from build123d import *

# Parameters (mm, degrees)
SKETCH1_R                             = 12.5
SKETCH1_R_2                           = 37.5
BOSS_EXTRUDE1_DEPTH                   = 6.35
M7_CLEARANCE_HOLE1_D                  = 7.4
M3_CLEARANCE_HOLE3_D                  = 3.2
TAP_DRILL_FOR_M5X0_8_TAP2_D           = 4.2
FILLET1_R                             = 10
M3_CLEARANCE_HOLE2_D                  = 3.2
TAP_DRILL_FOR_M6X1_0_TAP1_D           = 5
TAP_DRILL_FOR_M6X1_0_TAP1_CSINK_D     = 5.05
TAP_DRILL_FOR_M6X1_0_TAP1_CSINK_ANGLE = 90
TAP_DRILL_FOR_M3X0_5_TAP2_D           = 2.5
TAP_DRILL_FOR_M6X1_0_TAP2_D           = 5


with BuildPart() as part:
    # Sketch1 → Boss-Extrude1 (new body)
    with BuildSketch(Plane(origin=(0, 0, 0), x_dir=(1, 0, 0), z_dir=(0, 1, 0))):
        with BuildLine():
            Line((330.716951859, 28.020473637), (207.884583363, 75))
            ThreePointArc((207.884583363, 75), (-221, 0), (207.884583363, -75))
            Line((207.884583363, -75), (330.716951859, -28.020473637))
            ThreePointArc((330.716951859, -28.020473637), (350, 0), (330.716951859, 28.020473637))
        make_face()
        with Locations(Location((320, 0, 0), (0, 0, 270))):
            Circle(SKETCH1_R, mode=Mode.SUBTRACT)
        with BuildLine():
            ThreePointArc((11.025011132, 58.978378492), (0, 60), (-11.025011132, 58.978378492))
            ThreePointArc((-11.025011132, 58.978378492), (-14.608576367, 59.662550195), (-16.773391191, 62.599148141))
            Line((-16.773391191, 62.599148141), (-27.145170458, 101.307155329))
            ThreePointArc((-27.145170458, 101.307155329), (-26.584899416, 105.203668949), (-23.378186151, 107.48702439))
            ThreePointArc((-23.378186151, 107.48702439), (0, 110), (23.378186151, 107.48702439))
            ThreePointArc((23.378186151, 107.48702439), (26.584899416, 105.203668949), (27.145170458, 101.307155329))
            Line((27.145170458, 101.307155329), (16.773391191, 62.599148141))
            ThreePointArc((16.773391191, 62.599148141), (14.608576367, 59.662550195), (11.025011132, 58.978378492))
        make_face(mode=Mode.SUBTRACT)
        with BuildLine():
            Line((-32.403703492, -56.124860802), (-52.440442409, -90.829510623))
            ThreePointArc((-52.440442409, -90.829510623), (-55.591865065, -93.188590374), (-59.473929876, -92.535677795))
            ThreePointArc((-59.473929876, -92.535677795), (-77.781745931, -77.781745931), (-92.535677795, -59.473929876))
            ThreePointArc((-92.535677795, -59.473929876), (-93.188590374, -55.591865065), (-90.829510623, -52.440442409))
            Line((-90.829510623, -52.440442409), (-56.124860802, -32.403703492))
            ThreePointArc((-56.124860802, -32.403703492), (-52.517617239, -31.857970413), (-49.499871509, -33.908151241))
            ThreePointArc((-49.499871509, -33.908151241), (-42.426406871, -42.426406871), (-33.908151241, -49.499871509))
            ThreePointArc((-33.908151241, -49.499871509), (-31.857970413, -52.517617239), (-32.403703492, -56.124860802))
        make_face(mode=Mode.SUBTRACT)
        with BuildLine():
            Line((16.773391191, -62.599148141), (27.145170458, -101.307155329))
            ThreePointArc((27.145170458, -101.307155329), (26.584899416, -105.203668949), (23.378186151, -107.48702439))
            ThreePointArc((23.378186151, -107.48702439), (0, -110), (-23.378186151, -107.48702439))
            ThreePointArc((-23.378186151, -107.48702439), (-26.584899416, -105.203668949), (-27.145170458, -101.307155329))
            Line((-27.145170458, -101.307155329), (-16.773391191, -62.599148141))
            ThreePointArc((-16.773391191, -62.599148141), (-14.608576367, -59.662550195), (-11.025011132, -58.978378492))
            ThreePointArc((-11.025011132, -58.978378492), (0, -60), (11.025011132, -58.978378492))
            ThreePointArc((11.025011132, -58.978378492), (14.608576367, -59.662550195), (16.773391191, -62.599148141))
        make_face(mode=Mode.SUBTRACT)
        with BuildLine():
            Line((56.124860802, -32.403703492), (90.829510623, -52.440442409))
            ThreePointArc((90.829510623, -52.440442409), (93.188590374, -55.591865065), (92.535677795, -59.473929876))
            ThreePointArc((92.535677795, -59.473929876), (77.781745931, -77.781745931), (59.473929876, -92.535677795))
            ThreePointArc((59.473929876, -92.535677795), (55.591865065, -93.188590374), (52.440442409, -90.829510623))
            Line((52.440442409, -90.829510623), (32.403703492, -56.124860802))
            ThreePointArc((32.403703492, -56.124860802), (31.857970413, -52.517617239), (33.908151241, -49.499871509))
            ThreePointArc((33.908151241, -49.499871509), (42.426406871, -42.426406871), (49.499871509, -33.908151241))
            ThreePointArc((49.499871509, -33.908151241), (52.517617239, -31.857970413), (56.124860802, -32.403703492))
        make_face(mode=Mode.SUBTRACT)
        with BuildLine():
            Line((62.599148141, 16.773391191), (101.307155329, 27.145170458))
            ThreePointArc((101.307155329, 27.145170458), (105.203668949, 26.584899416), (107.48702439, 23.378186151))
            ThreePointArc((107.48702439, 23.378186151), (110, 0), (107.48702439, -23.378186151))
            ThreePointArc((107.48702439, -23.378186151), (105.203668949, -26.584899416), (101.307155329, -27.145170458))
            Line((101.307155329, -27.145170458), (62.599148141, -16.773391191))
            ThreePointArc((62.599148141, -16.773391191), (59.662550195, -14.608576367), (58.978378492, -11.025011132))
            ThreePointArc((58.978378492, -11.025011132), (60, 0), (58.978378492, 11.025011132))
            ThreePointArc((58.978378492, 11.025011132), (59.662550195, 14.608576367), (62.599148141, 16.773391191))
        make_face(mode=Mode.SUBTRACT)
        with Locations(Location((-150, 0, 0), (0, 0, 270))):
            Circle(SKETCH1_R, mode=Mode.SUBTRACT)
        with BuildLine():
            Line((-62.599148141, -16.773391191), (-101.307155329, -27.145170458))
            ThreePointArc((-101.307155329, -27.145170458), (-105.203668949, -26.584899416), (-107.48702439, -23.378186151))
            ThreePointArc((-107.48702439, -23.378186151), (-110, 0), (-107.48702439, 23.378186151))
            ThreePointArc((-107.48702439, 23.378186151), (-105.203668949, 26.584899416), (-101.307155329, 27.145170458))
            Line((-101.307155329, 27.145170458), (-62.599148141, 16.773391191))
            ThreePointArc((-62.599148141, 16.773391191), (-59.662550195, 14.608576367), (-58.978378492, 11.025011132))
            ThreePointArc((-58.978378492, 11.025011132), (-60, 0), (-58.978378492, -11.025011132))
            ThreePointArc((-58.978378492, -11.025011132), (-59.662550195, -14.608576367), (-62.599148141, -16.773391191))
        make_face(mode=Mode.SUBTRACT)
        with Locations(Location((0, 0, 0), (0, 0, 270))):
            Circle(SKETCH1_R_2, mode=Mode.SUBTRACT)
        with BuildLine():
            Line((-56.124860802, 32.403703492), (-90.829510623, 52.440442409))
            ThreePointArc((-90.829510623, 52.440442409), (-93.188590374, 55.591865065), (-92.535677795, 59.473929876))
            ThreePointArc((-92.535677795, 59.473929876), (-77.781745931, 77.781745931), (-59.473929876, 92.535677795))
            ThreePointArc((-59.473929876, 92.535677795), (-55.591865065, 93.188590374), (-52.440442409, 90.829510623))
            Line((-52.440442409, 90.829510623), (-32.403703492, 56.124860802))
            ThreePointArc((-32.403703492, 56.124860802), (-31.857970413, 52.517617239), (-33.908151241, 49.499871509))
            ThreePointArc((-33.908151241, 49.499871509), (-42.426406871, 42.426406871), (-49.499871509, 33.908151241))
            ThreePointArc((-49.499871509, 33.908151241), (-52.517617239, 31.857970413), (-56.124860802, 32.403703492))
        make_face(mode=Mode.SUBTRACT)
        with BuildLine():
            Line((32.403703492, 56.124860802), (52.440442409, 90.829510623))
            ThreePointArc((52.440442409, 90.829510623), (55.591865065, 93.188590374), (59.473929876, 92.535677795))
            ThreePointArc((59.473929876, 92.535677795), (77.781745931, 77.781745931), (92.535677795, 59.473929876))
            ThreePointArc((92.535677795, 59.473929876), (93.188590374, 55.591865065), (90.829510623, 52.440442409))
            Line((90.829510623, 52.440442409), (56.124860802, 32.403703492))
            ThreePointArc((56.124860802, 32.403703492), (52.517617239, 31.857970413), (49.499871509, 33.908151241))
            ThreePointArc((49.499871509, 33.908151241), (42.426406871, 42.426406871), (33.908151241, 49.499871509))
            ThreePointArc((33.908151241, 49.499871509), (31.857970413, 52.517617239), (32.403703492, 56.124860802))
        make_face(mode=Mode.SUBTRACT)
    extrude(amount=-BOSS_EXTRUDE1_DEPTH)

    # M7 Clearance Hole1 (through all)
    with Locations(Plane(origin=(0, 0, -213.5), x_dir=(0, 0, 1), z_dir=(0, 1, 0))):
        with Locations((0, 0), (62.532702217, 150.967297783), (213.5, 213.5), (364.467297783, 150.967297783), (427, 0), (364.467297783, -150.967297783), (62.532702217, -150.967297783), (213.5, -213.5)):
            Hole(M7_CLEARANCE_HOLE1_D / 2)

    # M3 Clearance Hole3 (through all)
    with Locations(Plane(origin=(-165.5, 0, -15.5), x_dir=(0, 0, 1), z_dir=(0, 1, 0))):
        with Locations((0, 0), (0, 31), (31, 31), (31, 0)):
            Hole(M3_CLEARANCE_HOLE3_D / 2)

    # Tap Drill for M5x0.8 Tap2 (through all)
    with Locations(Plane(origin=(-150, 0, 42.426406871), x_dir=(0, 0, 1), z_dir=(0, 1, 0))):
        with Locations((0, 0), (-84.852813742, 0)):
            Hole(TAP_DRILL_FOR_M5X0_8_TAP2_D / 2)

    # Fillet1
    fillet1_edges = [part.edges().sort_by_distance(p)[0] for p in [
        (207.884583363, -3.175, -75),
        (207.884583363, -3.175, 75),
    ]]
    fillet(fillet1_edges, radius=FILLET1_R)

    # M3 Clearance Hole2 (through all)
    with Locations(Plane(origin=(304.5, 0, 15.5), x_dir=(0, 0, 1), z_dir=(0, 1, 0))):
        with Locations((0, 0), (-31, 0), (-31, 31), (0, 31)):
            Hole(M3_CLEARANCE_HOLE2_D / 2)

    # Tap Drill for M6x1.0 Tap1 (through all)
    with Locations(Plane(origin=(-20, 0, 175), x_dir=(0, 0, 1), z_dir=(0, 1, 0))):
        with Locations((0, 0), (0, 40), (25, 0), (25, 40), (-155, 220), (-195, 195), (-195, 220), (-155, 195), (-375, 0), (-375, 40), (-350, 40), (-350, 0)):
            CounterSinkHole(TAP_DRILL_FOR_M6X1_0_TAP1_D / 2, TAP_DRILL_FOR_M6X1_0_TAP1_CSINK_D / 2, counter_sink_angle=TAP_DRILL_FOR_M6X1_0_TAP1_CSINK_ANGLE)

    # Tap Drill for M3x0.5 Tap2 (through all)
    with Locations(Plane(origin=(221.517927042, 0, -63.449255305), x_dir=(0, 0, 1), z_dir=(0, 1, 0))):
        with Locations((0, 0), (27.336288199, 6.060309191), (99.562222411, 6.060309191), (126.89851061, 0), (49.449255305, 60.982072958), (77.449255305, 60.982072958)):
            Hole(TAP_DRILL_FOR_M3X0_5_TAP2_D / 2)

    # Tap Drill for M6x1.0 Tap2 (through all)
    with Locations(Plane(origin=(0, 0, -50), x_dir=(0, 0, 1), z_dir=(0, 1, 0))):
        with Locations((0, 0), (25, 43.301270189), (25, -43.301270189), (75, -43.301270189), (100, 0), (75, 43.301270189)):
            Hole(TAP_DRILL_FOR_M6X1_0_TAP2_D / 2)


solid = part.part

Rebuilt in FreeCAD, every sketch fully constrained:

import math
import FreeCAD as App
import Part
import Sketcher

V = App.Vector
Q = App.Units.Quantity


def edges_at(feature, points):
    """Names of the edges that pass closest to the given points."""
    edges = feature.Shape.Edges
    near = lambda p: min(range(len(edges)), key=lambda i: edges[i].distToShape(Part.Vertex(*p))[0])
    return sorted({f"Edge{near(p) + 1}" for p in points})

doc = App.newDocument("Part")
body = doc.addObject("PartDesign::Body", "Body")

# Sketch on XZ plane
sketch1 = body.newObject("Sketcher::SketchObject", "Sketch")
sketch1.AttachmentSupport = (doc.getObject("XZ_Plane"), [""])
sketch1.MapMode = "FlatFace"
sketch1.addGeometry(Part.LineSegment(V(330.7, -28, 0), V(207.9, -75, 0)), False)
sketch1.addGeometry(Part.ArcOfCircle(Part.Circle(V(0, 0, 0), V(0, 0, 1), 221), math.radians(20), math.radians(340)), False)
sketch1.addGeometry(Part.LineSegment(V(207.9, 75, 0), V(330.7, 28, 0)), False)
sketch1.addGeometry(Part.ArcOfCircle(Part.Circle(V(320, 0, 0), V(0, 0, 1), 30), math.radians(-69), math.radians(69)), False)
sketch1.addGeometry(Part.ArcOfCircle(Part.Circle(V(-36.7, 53.6, 0), V(0, 0, 1), 5), math.radians(-56), math.radians(30)), False)
sketch1.addGeometry(Part.LineSegment(V(-32.4, 56.1, 0), V(-52.4, 90.8, 0)), False)
sketch1.addGeometry(Part.ArcOfCircle(Part.Circle(V(-56.8, 88.3, 0), V(0, 0, 1), 5), math.radians(30), math.radians(123)), False)
sketch1.addGeometry(Part.ArcOfCircle(Part.Circle(V(0, 0, 0), V(0, 0, 1), 110), math.radians(123), math.radians(147)), False)
sketch1.addGeometry(Part.ArcOfCircle(Part.Circle(V(-88.3, 56.8, 0), V(0, 0, 1), 5), math.radians(147), math.radians(240)), False)
sketch1.addGeometry(Part.LineSegment(V(-90.8, 52.4, 0), V(-56.1, 32.4, 0)), False)
sketch1.addGeometry(Part.ArcOfCircle(Part.Circle(V(-53.6, 36.7, 0), V(0, 0, 1), 5), math.radians(-120), math.radians(-34)), False)
sketch1.addGeometry(Part.ArcOfCircle(Part.Circle(V(0, 0, 0), V(0, 0, 1), 60), math.radians(124), math.radians(146)), False)
sketch1.addGeometry(Part.ArcOfCircle(Part.Circle(V(11.9, 63.9, 0), V(0, 0, 1), 5), math.radians(-101), math.radians(-15)), False)
sketch1.addGeometry(Part.LineSegment(V(16.8, 62.6, 0), V(27.1, 101.3, 0)), False)
sketch1.addGeometry(Part.ArcOfCircle(Part.Circle(V(22.3, 102.6, 0), V(0, 0, 1), 5), math.radians(-15), math.radians(78)), False)
sketch1.addGeometry(Part.ArcOfCircle(Part.Circle(V(0, 0, 0), V(0, 0, 1), 110), math.radians(78), math.radians(102)), False)
sketch1.addGeometry(Part.ArcOfCircle(Part.Circle(V(-22.3, 102.6, 0), V(0, 0, 1), 5), math.radians(102), math.radians(195)), False)
sketch1.addGeometry(Part.LineSegment(V(-27.1, 101.3, 0), V(-16.8, 62.6, 0)), False)
sketch1.addGeometry(Part.ArcOfCircle(Part.Circle(V(-11.9, 63.9, 0), V(0, 0, 1), 5), math.radians(-165), math.radians(-79)), False)
sketch1.addGeometry(Part.ArcOfCircle(Part.Circle(V(0, 0, 0), V(0, 0, 1), 60), math.radians(79), math.radians(101)), False)
sketch1.addGeometry(Part.ArcOfCircle(Part.Circle(V(53.6, 36.7, 0), V(0, 0, 1), 5), math.radians(-146), math.radians(-60)), False)
sketch1.addGeometry(Part.LineSegment(V(56.1, 32.4, 0), V(90.8, 52.4, 0)), False)
sketch1.addGeometry(Part.ArcOfCircle(Part.Circle(V(88.3, 56.8, 0), V(0, 0, 1), 5), math.radians(-60), math.radians(33)), False)
sketch1.addGeometry(Part.ArcOfCircle(Part.Circle(V(0, 0, 0), V(0, 0, 1), 110), math.radians(33), math.radians(57)), False)
sketch1.addGeometry(Part.ArcOfCircle(Part.Circle(V(56.8, 88.3, 0), V(0, 0, 1), 5), math.radians(57), math.radians(150)), False)
sketch1.addGeometry(Part.LineSegment(V(52.4, 90.8, 0), V(32.4, 56.1, 0)), False)
sketch1.addGeometry(Part.ArcOfCircle(Part.Circle(V(36.7, 53.6, 0), V(0, 0, 1), 5), math.radians(150), math.radians(236)), False)
sketch1.addGeometry(Part.ArcOfCircle(Part.Circle(V(0, 0, 0), V(0, 0, 1), 60), math.radians(34), math.radians(56)), False)
sketch1.addGeometry(Part.Circle(V(-150, 0, 0), V(0, 0, 1), 12.5), False)
sketch1.addGeometry(Part.ArcOfCircle(Part.Circle(V(-63.9, 11.9, 0), V(0, 0, 1), 5), math.radians(-11), math.radians(75)), False)
sketch1.addGeometry(Part.LineSegment(V(-62.6, 16.8, 0), V(-101.3, 27.1, 0)), False)
sketch1.addGeometry(Part.ArcOfCircle(Part.Circle(V(-102.6, 22.3, 0), V(0, 0, 1), 5), math.radians(75), math.radians(168)), False)
sketch1.addGeometry(Part.ArcOfCircle(Part.Circle(V(0, 0, 0), V(0, 0, 1), 110), math.radians(168), math.radians(192)), False)
sketch1.addGeometry(Part.ArcOfCircle(Part.Circle(V(-102.6, -22.3, 0), V(0, 0, 1), 5), math.radians(-168), math.radians(-75)), False)
sketch1.addGeometry(Part.LineSegment(V(-101.3, -27.1, 0), V(-62.6, -16.8, 0)), False)
sketch1.addGeometry(Part.ArcOfCircle(Part.Circle(V(-63.9, -11.9, 0), V(0, 0, 1), 5), math.radians(-75), math.radians(11)), False)
sketch1.addGeometry(Part.ArcOfCircle(Part.Circle(V(0, 0, 0), V(0, 0, 1), 60), math.radians(169), math.radians(191)), False)
sketch1.addGeometry(Part.Circle(V(0, 0, 0), V(0, 0, 1), 37.5), False)
sketch1.addGeometry(Part.ArcOfCircle(Part.Circle(V(63.9, -11.9, 0), V(0, 0, 1), 5), math.radians(169), math.radians(255)), False)
sketch1.addGeometry(Part.LineSegment(V(62.6, -16.8, 0), V(101.3, -27.1, 0)), False)
sketch1.addGeometry(Part.ArcOfCircle(Part.Circle(V(102.6, -22.3, 0), V(0, 0, 1), 5), math.radians(-105), math.radians(-12)), False)
sketch1.addGeometry(Part.ArcOfCircle(Part.Circle(V(0, 0, 0), V(0, 0, 1), 110), math.radians(-12), math.radians(12)), False)
sketch1.addGeometry(Part.ArcOfCircle(Part.Circle(V(102.6, 22.3, 0), V(0, 0, 1), 5), math.radians(12), math.radians(105)), False)
sketch1.addGeometry(Part.LineSegment(V(101.3, 27.1, 0), V(62.6, 16.8, 0)), False)
sketch1.addGeometry(Part.ArcOfCircle(Part.Circle(V(63.9, 11.9, 0), V(0, 0, 1), 5), math.radians(105), math.radians(191)), False)
sketch1.addGeometry(Part.ArcOfCircle(Part.Circle(V(0, 0, 0), V(0, 0, 1), 60), math.radians(-11), math.radians(11)), False)
sketch1.addGeometry(Part.ArcOfCircle(Part.Circle(V(-53.6, -36.7, 0), V(0, 0, 1), 5), math.radians(34), math.radians(120)), False)
sketch1.addGeometry(Part.LineSegment(V(-56.1, -32.4, 0), V(-90.8, -52.4, 0)), False)
sketch1.addGeometry(Part.ArcOfCircle(Part.Circle(V(-88.3, -56.8, 0), V(0, 0, 1), 5), math.radians(120), math.radians(213)), False)
sketch1.addGeometry(Part.ArcOfCircle(Part.Circle(V(0, 0, 0), V(0, 0, 1), 110), math.radians(-147), math.radians(-123)), False)
sketch1.addGeometry(Part.ArcOfCircle(Part.Circle(V(-56.8, -88.3, 0), V(0, 0, 1), 5), math.radians(-123), math.radians(-30)), False)
sketch1.addGeometry(Part.LineSegment(V(-52.4, -90.8, 0), V(-32.4, -56.1, 0)), False)
sketch1.addGeometry(Part.ArcOfCircle(Part.Circle(V(-36.7, -53.6, 0), V(0, 0, 1), 5), math.radians(-30), math.radians(56)), False)
sketch1.addGeometry(Part.ArcOfCircle(Part.Circle(V(0, 0, 0), V(0, 0, 1), 60), math.radians(-146), math.radians(-124)), False)
sketch1.addGeometry(Part.ArcOfCircle(Part.Circle(V(36.7, -53.6, 0), V(0, 0, 1), 5), math.radians(124), math.radians(210)), False)
sketch1.addGeometry(Part.LineSegment(V(32.4, -56.1, 0), V(52.4, -90.8, 0)), False)
sketch1.addGeometry(Part.ArcOfCircle(Part.Circle(V(56.8, -88.3, 0), V(0, 0, 1), 5), math.radians(-150), math.radians(-57)), False)
sketch1.addGeometry(Part.ArcOfCircle(Part.Circle(V(0, 0, 0), V(0, 0, 1), 110), math.radians(-57), math.radians(-33)), False)
sketch1.addGeometry(Part.ArcOfCircle(Part.Circle(V(88.3, -56.8, 0), V(0, 0, 1), 5), math.radians(-33), math.radians(60)), False)
sketch1.addGeometry(Part.LineSegment(V(90.8, -52.4, 0), V(56.1, -32.4, 0)), False)
sketch1.addGeometry(Part.ArcOfCircle(Part.Circle(V(53.6, -36.7, 0), V(0, 0, 1), 5), math.radians(60), math.radians(146)), False)
sketch1.addGeometry(Part.ArcOfCircle(Part.Circle(V(0, 0, 0), V(0, 0, 1), 60), math.radians(-56), math.radians(-34)), False)
sketch1.addGeometry(Part.ArcOfCircle(Part.Circle(V(11.9, -63.9, 0), V(0, 0, 1), 5), math.radians(15), math.radians(101)), False)
sketch1.addGeometry(Part.ArcOfCircle(Part.Circle(V(0, 0, 0), V(0, 0, 1), 60), math.radians(-101), math.radians(-79)), False)
sketch1.addGeometry(Part.ArcOfCircle(Part.Circle(V(-11.9, -63.9, 0), V(0, 0, 1), 5), math.radians(79), math.radians(165)), False)
sketch1.addGeometry(Part.LineSegment(V(-16.8, -62.6, 0), V(-27.1, -101.3, 0)), False)
sketch1.addGeometry(Part.ArcOfCircle(Part.Circle(V(-22.3, -102.6, 0), V(0, 0, 1), 5), math.radians(165), math.radians(258)), False)
sketch1.addGeometry(Part.ArcOfCircle(Part.Circle(V(0, 0, 0), V(0, 0, 1), 110), math.radians(-102), math.radians(-78)), False)
sketch1.addGeometry(Part.ArcOfCircle(Part.Circle(V(22.3, -102.6, 0), V(0, 0, 1), 5), math.radians(-78), math.radians(15)), False)
sketch1.addGeometry(Part.LineSegment(V(27.1, -101.3, 0), V(16.8, -62.6, 0)), False)
sketch1.addGeometry(Part.Circle(V(320, 0, 0), V(0, 0, 1), 12.5), False)
sketch1.addConstraint(Sketcher.Constraint("Coincident", 0, 2, 1, 2))
sketch1.addConstraint(Sketcher.Constraint("Coincident", 1, 1, 2, 1))
sketch1.addConstraint(Sketcher.Constraint("Tangent", 2, 2, 3, 2))
sketch1.addConstraint(Sketcher.Constraint("Tangent", 3, 1, 0, 1))
sketch1.addConstraint(Sketcher.Constraint("Tangent", 4, 2, 5, 1))
sketch1.addConstraint(Sketcher.Constraint("Tangent", 5, 2, 6, 1))
sketch1.addConstraint(Sketcher.Constraint("Tangent", 6, 2, 7, 1))
sketch1.addConstraint(Sketcher.Constraint("Tangent", 7, 2, 8, 1))
sketch1.addConstraint(Sketcher.Constraint("Tangent", 8, 2, 9, 1))
sketch1.addConstraint(Sketcher.Constraint("Tangent", 9, 2, 10, 1))
sketch1.addConstraint(Sketcher.Constraint("Tangent", 10, 2, 11, 2))
sketch1.addConstraint(Sketcher.Constraint("Tangent", 11, 1, 4, 1))
sketch1.addConstraint(Sketcher.Constraint("Tangent", 12, 2, 13, 1))
sketch1.addConstraint(Sketcher.Constraint("Tangent", 13, 2, 14, 1))
sketch1.addConstraint(Sketcher.Constraint("Tangent", 14, 2, 15, 1))
sketch1.addConstraint(Sketcher.Constraint("Tangent", 15, 2, 16, 1))
sketch1.addConstraint(Sketcher.Constraint("Tangent", 16, 2, 17, 1))
sketch1.addConstraint(Sketcher.Constraint("Tangent", 17, 2, 18, 1))
sketch1.addConstraint(Sketcher.Constraint("Tangent", 18, 2, 19, 2))
sketch1.addConstraint(Sketcher.Constraint("Tangent", 19, 1, 12, 1))
sketch1.addConstraint(Sketcher.Constraint("Tangent", 20, 2, 21, 1))
sketch1.addConstraint(Sketcher.Constraint("Tangent", 21, 2, 22, 1))
sketch1.addConstraint(Sketcher.Constraint("Tangent", 22, 2, 23, 1))
sketch1.addConstraint(Sketcher.Constraint("Tangent", 23, 2, 24, 1))
sketch1.addConstraint(Sketcher.Constraint("Tangent", 24, 2, 25, 1))
sketch1.addConstraint(Sketcher.Constraint("Tangent", 25, 2, 26, 1))
sketch1.addConstraint(Sketcher.Constraint("Tangent", 26, 2, 27, 2))
sketch1.addConstraint(Sketcher.Constraint("Tangent", 27, 1, 20, 1))
sketch1.addConstraint(Sketcher.Constraint("Tangent", 29, 2, 30, 1))
sketch1.addConstraint(Sketcher.Constraint("Tangent", 30, 2, 31, 1))
sketch1.addConstraint(Sketcher.Constraint("Tangent", 31, 2, 32, 1))
sketch1.addConstraint(Sketcher.Constraint("Tangent", 32, 2, 33, 1))
sketch1.addConstraint(Sketcher.Constraint("Tangent", 33, 2, 34, 1))
sketch1.addConstraint(Sketcher.Constraint("Tangent", 34, 2, 35, 1))
sketch1.addConstraint(Sketcher.Constraint("Tangent", 35, 2, 36, 2))
sketch1.addConstraint(Sketcher.Constraint("Tangent", 36, 1, 29, 1))
sketch1.addConstraint(Sketcher.Constraint("Tangent", 38, 2, 39, 1))
sketch1.addConstraint(Sketcher.Constraint("Tangent", 39, 2, 40, 1))
sketch1.addConstraint(Sketcher.Constraint("Tangent", 40, 2, 41, 1))
sketch1.addConstraint(Sketcher.Constraint("Tangent", 41, 2, 42, 1))
sketch1.addConstraint(Sketcher.Constraint("Tangent", 42, 2, 43, 1))
sketch1.addConstraint(Sketcher.Constraint("Tangent", 43, 2, 44, 1))
sketch1.addConstraint(Sketcher.Constraint("Tangent", 44, 2, 45, 2))
sketch1.addConstraint(Sketcher.Constraint("Tangent", 45, 1, 38, 1))
sketch1.addConstraint(Sketcher.Constraint("Tangent", 46, 2, 47, 1))
sketch1.addConstraint(Sketcher.Constraint("Tangent", 47, 2, 48, 1))
sketch1.addConstraint(Sketcher.Constraint("Tangent", 48, 2, 49, 1))
sketch1.addConstraint(Sketcher.Constraint("Tangent", 49, 2, 50, 1))
sketch1.addConstraint(Sketcher.Constraint("Tangent", 50, 2, 51, 1))
sketch1.addConstraint(Sketcher.Constraint("Tangent", 51, 2, 52, 1))
sketch1.addConstraint(Sketcher.Constraint("Tangent", 52, 2, 53, 2))
sketch1.addConstraint(Sketcher.Constraint("Tangent", 53, 1, 46, 1))
sketch1.addConstraint(Sketcher.Constraint("Tangent", 54, 2, 55, 1))
sketch1.addConstraint(Sketcher.Constraint("Tangent", 55, 2, 56, 1))
sketch1.addConstraint(Sketcher.Constraint("Tangent", 56, 2, 57, 1))
sketch1.addConstraint(Sketcher.Constraint("Tangent", 57, 2, 58, 1))
sketch1.addConstraint(Sketcher.Constraint("Tangent", 58, 2, 59, 1))
sketch1.addConstraint(Sketcher.Constraint("Tangent", 59, 2, 60, 1))
sketch1.addConstraint(Sketcher.Constraint("Tangent", 60, 2, 61, 2))
sketch1.addConstraint(Sketcher.Constraint("Tangent", 61, 1, 54, 1))
sketch1.addConstraint(Sketcher.Constraint("Tangent", 62, 2, 63, 2))
sketch1.addConstraint(Sketcher.Constraint("Tangent", 63, 1, 64, 1))
sketch1.addConstraint(Sketcher.Constraint("Tangent", 64, 2, 65, 1))
sketch1.addConstraint(Sketcher.Constraint("Tangent", 65, 2, 66, 1))
sketch1.addConstraint(Sketcher.Constraint("Tangent", 66, 2, 67, 1))
sketch1.addConstraint(Sketcher.Constraint("Tangent", 67, 2, 68, 1))
sketch1.addConstraint(Sketcher.Constraint("Tangent", 68, 2, 69, 1))
sketch1.addConstraint(Sketcher.Constraint("Tangent", 69, 2, 62, 1))
sketch1.addConstraint(Sketcher.Constraint("Coincident", 1, 3, -1, 1))
sketch1.addConstraint(Sketcher.Constraint("Coincident", 7, 3, -1, 1))
sketch1.addConstraint(Sketcher.Constraint("Coincident", 11, 3, -1, 1))
sketch1.addConstraint(Sketcher.Constraint("Coincident", 15, 3, -1, 1))
sketch1.addConstraint(Sketcher.Constraint("Coincident", 19, 3, -1, 1))
sketch1.addConstraint(Sketcher.Constraint("Coincident", 23, 3, -1, 1))
sketch1.addConstraint(Sketcher.Constraint("Coincident", 27, 3, -1, 1))
sketch1.addConstraint(Sketcher.Constraint("Coincident", 32, 3, -1, 1))
sketch1.addConstraint(Sketcher.Constraint("Coincident", 36, 3, -1, 1))
sketch1.addConstraint(Sketcher.Constraint("Coincident", 37, 3, -1, 1))
sketch1.addConstraint(Sketcher.Constraint("Coincident", 41, 3, -1, 1))
sketch1.addConstraint(Sketcher.Constraint("Coincident", 45, 3, -1, 1))
sketch1.addConstraint(Sketcher.Constraint("Coincident", 49, 3, -1, 1))
sketch1.addConstraint(Sketcher.Constraint("Coincident", 53, 3, -1, 1))
sketch1.addConstraint(Sketcher.Constraint("Coincident", 57, 3, -1, 1))
sketch1.addConstraint(Sketcher.Constraint("Coincident", 61, 3, -1, 1))
sketch1.addConstraint(Sketcher.Constraint("Coincident", 63, 3, -1, 1))
sketch1.addConstraint(Sketcher.Constraint("Coincident", 67, 3, -1, 1))
sketch1.addConstraint(Sketcher.Constraint("Coincident", 70, 3, 3, 3))
sketch1.addConstraint(Sketcher.Constraint("Equal", 4, 6))
sketch1.addConstraint(Sketcher.Constraint("Equal", 6, 8))
sketch1.addConstraint(Sketcher.Constraint("Equal", 8, 10))
sketch1.addConstraint(Sketcher.Constraint("Equal", 10, 12))
sketch1.addConstraint(Sketcher.Constraint("Equal", 12, 14))
sketch1.addConstraint(Sketcher.Constraint("Equal", 7, 15))
sketch1.addConstraint(Sketcher.Constraint("Equal", 14, 16))
sketch1.addConstraint(Sketcher.Constraint("Equal", 16, 18))
sketch1.addConstraint(Sketcher.Constraint("Equal", 11, 19))
sketch1.addConstraint(Sketcher.Constraint("Equal", 18, 20))
sketch1.addConstraint(Sketcher.Constraint("Equal", 20, 22))
sketch1.addConstraint(Sketcher.Constraint("Equal", 15, 23))
sketch1.addConstraint(Sketcher.Constraint("Equal", 22, 24))
sketch1.addConstraint(Sketcher.Constraint("Equal", 24, 26))
sketch1.addConstraint(Sketcher.Constraint("Equal", 19, 27))
sketch1.addConstraint(Sketcher.Constraint("Equal", 26, 29))
sketch1.addConstraint(Sketcher.Constraint("Equal", 29, 31))
sketch1.addConstraint(Sketcher.Constraint("Equal", 23, 32))
sketch1.addConstraint(Sketcher.Constraint("Equal", 31, 33))
sketch1.addConstraint(Sketcher.Constraint("Equal", 33, 35))
sketch1.addConstraint(Sketcher.Constraint("Equal", 27, 36))
sketch1.addConstraint(Sketcher.Constraint("Equal", 35, 38))
sketch1.addConstraint(Sketcher.Constraint("Equal", 38, 40))
sketch1.addConstraint(Sketcher.Constraint("Equal", 32, 41))
sketch1.addConstraint(Sketcher.Constraint("Equal", 40, 42))
sketch1.addConstraint(Sketcher.Constraint("Equal", 42, 44))
sketch1.addConstraint(Sketcher.Constraint("Equal", 36, 45))
sketch1.addConstraint(Sketcher.Constraint("Equal", 44, 46))
sketch1.addConstraint(Sketcher.Constraint("Equal", 46, 48))
sketch1.addConstraint(Sketcher.Constraint("Equal", 41, 49))
sketch1.addConstraint(Sketcher.Constraint("Equal", 48, 50))
sketch1.addConstraint(Sketcher.Constraint("Equal", 50, 52))
sketch1.addConstraint(Sketcher.Constraint("Equal", 45, 53))
sketch1.addConstraint(Sketcher.Constraint("Equal", 52, 54))
sketch1.addConstraint(Sketcher.Constraint("Equal", 54, 56))
sketch1.addConstraint(Sketcher.Constraint("Equal", 49, 57))
sketch1.addConstraint(Sketcher.Constraint("Equal", 56, 58))
sketch1.addConstraint(Sketcher.Constraint("Equal", 58, 60))
sketch1.addConstraint(Sketcher.Constraint("Equal", 53, 61))
sketch1.addConstraint(Sketcher.Constraint("Equal", 60, 62))
sketch1.addConstraint(Sketcher.Constraint("Equal", 61, 63))
sketch1.addConstraint(Sketcher.Constraint("Equal", 62, 64))
sketch1.addConstraint(Sketcher.Constraint("Equal", 64, 66))
sketch1.addConstraint(Sketcher.Constraint("Equal", 57, 67))
sketch1.addConstraint(Sketcher.Constraint("Equal", 66, 68))
sketch1.addConstraint(Sketcher.Constraint("Equal", 28, 70))
sketch1.addConstraint(Sketcher.Constraint("Symmetric", 29, 2, 38, 2, -1, 1))
sketch1.addConstraint(Sketcher.Constraint("Symmetric", 33, 2, 42, 2, -1, 1))
sketch1.addConstraint(Sketcher.Constraint("Symmetric", 20, 2, 46, 2, -1, 1))
sketch1.addConstraint(Sketcher.Constraint("Symmetric", 24, 2, 50, 2, -1, 1))
sketch1.addConstraint(Sketcher.Constraint("Symmetric", 4, 2, 54, 2, -1, 1))
sketch1.addConstraint(Sketcher.Constraint("Symmetric", 8, 2, 58, 2, -1, 1))
sketch1.addConstraint(Sketcher.Constraint("Symmetric", 12, 2, 64, 2, -1, 1))
sketch1.addConstraint(Sketcher.Constraint("Symmetric", 16, 2, 68, 2, -1, 1))
sketch1.addConstraint(Sketcher.Constraint("Symmetric", 13, 2, 16, 2, -2))
sketch1.addConstraint(Sketcher.Constraint("Symmetric", 9, 2, 20, 2, -2))
sketch1.addConstraint(Sketcher.Constraint("Symmetric", 5, 2, 24, 2, -2))
sketch1.addConstraint(Sketcher.Constraint("Symmetric", 34, 2, 38, 2, -2))
sketch1.addConstraint(Sketcher.Constraint("Symmetric", 2, 2, 3, 1, -1))
sketch1.addConstraint(Sketcher.Constraint("PointOnObject", 28, 3, -1))
sketch1.addConstraint(Sketcher.Constraint("Perpendicular", 5, 21))
sketch1.addConstraint(Sketcher.Constraint("Perpendicular", 13, 30))
sketch1.addConstraint(Sketcher.Constraint("Equal", 5, 9))
sketch1.addConstraint(Sketcher.Constraint("Equal", 9, 13))
sketch1.addConstraint(Sketcher.Constraint("Equal", 25, 30))
sketch1.addConstraint(Sketcher.Constraint("Diameter", 28, 25.0))
sketch1.addConstraint(Sketcher.Constraint("Diameter", 37, 75.0))
sketch1.addConstraint(Sketcher.Constraint("Radius", 1, 221.0))
sketch1.addConstraint(Sketcher.Constraint("Radius", 3, 30.0))
sketch1.addConstraint(Sketcher.Constraint("Radius", 4, 5.0))
sketch1.addConstraint(Sketcher.Constraint("Radius", 7, 110.0))
sketch1.addConstraint(Sketcher.Constraint("Radius", 11, 60.0))
sketch1.addConstraint(Sketcher.Constraint("Angle", 5, Q("120 deg")))
sketch1.addConstraint(Sketcher.Constraint("Angle", 13, Q("75 deg")))
sketch1.addConstraint(Sketcher.Constraint("DistanceX", -1, 1, 3, 3, 320.0))
sketch1.addConstraint(Sketcher.Constraint("DistanceX", 28, 3, -1, 1, 150.0))
sketch1.addConstraint(Sketcher.Constraint("DistanceY", 0, 2, -1, 1, 75.0))
sketch1.addConstraint(Sketcher.Constraint("DistanceX", 4, 3, -1, 1, 36.733831))
pad1 = body.newObject("PartDesign::Pad", "Pad")
pad1.Profile = sketch1
pad1.Length = 6.35

# Sketch on XZ plane
sketch2 = body.newObject("Sketcher::SketchObject", "Sketch001")
sketch2.AttachmentSupport = (doc.getObject("XZ_Plane"), [""])
sketch2.MapMode = "FlatFace"
sketch2.addGeometry(Part.Circle(V(0, -213.5, 0), V(0, 0, 1), 3.7), False)
sketch2.addGeometry(Part.Circle(V(151, -151, 0), V(0, 0, 1), 3.7), False)
sketch2.addGeometry(Part.Circle(V(213.5, 0, 0), V(0, 0, 1), 3.7), False)
sketch2.addGeometry(Part.Circle(V(151, 151, 0), V(0, 0, 1), 3.7), False)
sketch2.addGeometry(Part.Circle(V(0, 213.5, 0), V(0, 0, 1), 3.7), False)
sketch2.addGeometry(Part.Circle(V(-151, 151, 0), V(0, 0, 1), 3.7), False)
sketch2.addGeometry(Part.Circle(V(-151, -151, 0), V(0, 0, 1), 3.7), False)
sketch2.addGeometry(Part.Circle(V(-213.5, 0, 0), V(0, 0, 1), 3.7), False)
sketch2.addConstraint(Sketcher.Constraint("Equal", 0, 1))
sketch2.addConstraint(Sketcher.Constraint("Equal", 1, 2))
sketch2.addConstraint(Sketcher.Constraint("Equal", 2, 3))
sketch2.addConstraint(Sketcher.Constraint("Equal", 3, 4))
sketch2.addConstraint(Sketcher.Constraint("Equal", 4, 5))
sketch2.addConstraint(Sketcher.Constraint("Equal", 5, 6))
sketch2.addConstraint(Sketcher.Constraint("Equal", 6, 7))
sketch2.addConstraint(Sketcher.Constraint("Symmetric", 0, 3, 4, 3, -1, 1))
sketch2.addConstraint(Sketcher.Constraint("Symmetric", 1, 3, 5, 3, -1, 1))
sketch2.addConstraint(Sketcher.Constraint("Symmetric", 3, 3, 6, 3, -1, 1))
sketch2.addConstraint(Sketcher.Constraint("Symmetric", 2, 3, 7, 3, -1, 1))
sketch2.addConstraint(Sketcher.Constraint("Symmetric", 3, 3, 5, 3, -2))
sketch2.addConstraint(Sketcher.Constraint("PointOnObject", 0, 3, -2))
sketch2.addConstraint(Sketcher.Constraint("PointOnObject", 2, 3, -1))
sketch2.addConstraint(Sketcher.Constraint("Diameter", 0, 7.4))
sketch2.addConstraint(Sketcher.Constraint("DistanceY", 0, 3, 4, 3, 427.0))
sketch2.addConstraint(Sketcher.Constraint("DistanceX", -1, 1, 2, 3, 213.5))
sketch2.addConstraint(Sketcher.Constraint("DistanceX", -1, 1, 1, 3, 150.967298))
sketch2.addConstraint(Sketcher.Constraint("DistanceY", 1, 3, -1, 1, 150.967298))
doc.recompute()
hole = body.newObject("PartDesign::Hole", "Hole")
hole.Profile = sketch2
hole.ThreadType = "None"
hole.Diameter = 7.4
hole.DepthType = "ThroughAll"
hole.Reversed = True

# Sketch on XZ plane
sketch3 = body.newObject("Sketcher::SketchObject", "Sketch002")
sketch3.AttachmentSupport = (doc.getObject("XZ_Plane"), [""])
sketch3.MapMode = "FlatFace"
sketch3.addGeometry(Part.Circle(V(-165.5, -15.5, 0), V(0, 0, 1), 1.6), False)
sketch3.addGeometry(Part.Circle(V(-134.5, -15.5, 0), V(0, 0, 1), 1.6), False)
sketch3.addGeometry(Part.Circle(V(-134.5, 15.5, 0), V(0, 0, 1), 1.6), False)
sketch3.addGeometry(Part.Circle(V(-165.5, 15.5, 0), V(0, 0, 1), 1.6), False)
sketch3.addConstraint(Sketcher.Constraint("Equal", 0, 1))
sketch3.addConstraint(Sketcher.Constraint("Equal", 1, 2))
sketch3.addConstraint(Sketcher.Constraint("Equal", 2, 3))
sketch3.addConstraint(Sketcher.Constraint("Symmetric", 1, 3, 2, 3, -1))
sketch3.addConstraint(Sketcher.Constraint("Symmetric", 0, 3, 3, 3, -1))
sketch3.addConstraint(Sketcher.Constraint("Horizontal", 0, 3, 1, 3))
sketch3.addConstraint(Sketcher.Constraint("Diameter", 0, 3.2))
sketch3.addConstraint(Sketcher.Constraint("DistanceX", 0, 3, 1, 3, 31.0))
sketch3.addConstraint(Sketcher.Constraint("DistanceY", 1, 3, 2, 3, 31.0))
sketch3.addConstraint(Sketcher.Constraint("DistanceX", 0, 3, -1, 1, 165.5))
doc.recompute()
hole2 = body.newObject("PartDesign::Hole", "Hole001")
hole2.Profile = sketch3
hole2.ThreadType = "None"
hole2.Diameter = 3.2
hole2.DepthType = "ThroughAll"
hole2.Reversed = True

# Sketch on XZ plane
sketch4 = body.newObject("Sketcher::SketchObject", "Sketch003")
sketch4.AttachmentSupport = (doc.getObject("XZ_Plane"), [""])
sketch4.MapMode = "FlatFace"
sketch4.addGeometry(Part.Circle(V(-150, 42.4, 0), V(0, 0, 1), 2.1), False)
sketch4.addGeometry(Part.Circle(V(-150, -42.4, 0), V(0, 0, 1), 2.1), False)
sketch4.addConstraint(Sketcher.Constraint("Equal", 0, 1))
sketch4.addConstraint(Sketcher.Constraint("Symmetric", 0, 3, 1, 3, -1))
sketch4.addConstraint(Sketcher.Constraint("Diameter", 0, 4.2))
sketch4.addConstraint(Sketcher.Constraint("DistanceX", 0, 3, -1, 1, 150.0))
sketch4.addConstraint(Sketcher.Constraint("DistanceY", -1, 1, 0, 3, 42.426407))
doc.recompute()
hole3 = body.newObject("PartDesign::Hole", "Hole002")
hole3.Profile = sketch4
hole3.ThreadType = "None"
hole3.Diameter = 4.2
hole3.DepthType = "ThroughAll"
hole3.Reversed = True
doc.recompute()

fillet = body.newObject("PartDesign::Fillet", "Fillet")
fillet.Base = (hole3, edges_at(hole3, [(207.885, -3.175, -75), (207.885, -3.175, 75)]))
fillet.Radius = 10

# Sketch on XZ plane
sketch5 = body.newObject("Sketcher::SketchObject", "Sketch004")
sketch5.AttachmentSupport = (doc.getObject("XZ_Plane"), [""])
sketch5.MapMode = "FlatFace"
sketch5.addGeometry(Part.Circle(V(304.5, 15.5, 0), V(0, 0, 1), 1.6), False)
sketch5.addGeometry(Part.Circle(V(304.5, -15.5, 0), V(0, 0, 1), 1.6), False)
sketch5.addGeometry(Part.Circle(V(335.5, -15.5, 0), V(0, 0, 1), 1.6), False)
sketch5.addGeometry(Part.Circle(V(335.5, 15.5, 0), V(0, 0, 1), 1.6), False)
sketch5.addConstraint(Sketcher.Constraint("Equal", 0, 1))
sketch5.addConstraint(Sketcher.Constraint("Equal", 1, 2))
sketch5.addConstraint(Sketcher.Constraint("Equal", 2, 3))
sketch5.addConstraint(Sketcher.Constraint("Symmetric", 0, 3, 1, 3, -1))
sketch5.addConstraint(Sketcher.Constraint("Symmetric", 2, 3, 3, 3, -1))
sketch5.addConstraint(Sketcher.Constraint("Horizontal", 1, 3, 2, 3))
sketch5.addConstraint(Sketcher.Constraint("Diameter", 0, 3.2))
sketch5.addConstraint(Sketcher.Constraint("DistanceY", 1, 3, 0, 3, 31.0))
sketch5.addConstraint(Sketcher.Constraint("DistanceX", 1, 3, 2, 3, 31.0))
sketch5.addConstraint(Sketcher.Constraint("DistanceX", -1, 1, 0, 3, 304.5))
doc.recompute()
hole4 = body.newObject("PartDesign::Hole", "Hole003")
hole4.Profile = sketch5
hole4.ThreadType = "None"
hole4.Diameter = 3.2
hole4.DepthType = "ThroughAll"
hole4.Reversed = True

# Sketch on XZ plane
sketch6 = body.newObject("Sketcher::SketchObject", "Sketch005")
sketch6.AttachmentSupport = (doc.getObject("XZ_Plane"), [""])
sketch6.MapMode = "FlatFace"
sketch6.addGeometry(Part.Circle(V(-20, 175, 0), V(0, 0, 1), 2.5), False)
sketch6.addGeometry(Part.Circle(V(20, 175, 0), V(0, 0, 1), 2.5), False)
sketch6.addGeometry(Part.Circle(V(-20, 200, 0), V(0, 0, 1), 2.5), False)
sketch6.addGeometry(Part.Circle(V(20, 200, 0), V(0, 0, 1), 2.5), False)
sketch6.addGeometry(Part.Circle(V(200, 20, 0), V(0, 0, 1), 2.5), False)
sketch6.addGeometry(Part.Circle(V(175, -20, 0), V(0, 0, 1), 2.5), False)
sketch6.addGeometry(Part.Circle(V(200, -20, 0), V(0, 0, 1), 2.5), False)
sketch6.addGeometry(Part.Circle(V(175, 20, 0), V(0, 0, 1), 2.5), False)
sketch6.addGeometry(Part.Circle(V(-20, -200, 0), V(0, 0, 1), 2.5), False)
sketch6.addGeometry(Part.Circle(V(20, -200, 0), V(0, 0, 1), 2.5), False)
sketch6.addGeometry(Part.Circle(V(20, -175, 0), V(0, 0, 1), 2.5), False)
sketch6.addGeometry(Part.Circle(V(-20, -175, 0), V(0, 0, 1), 2.5), False)
sketch6.addConstraint(Sketcher.Constraint("Equal", 0, 1))
sketch6.addConstraint(Sketcher.Constraint("Equal", 1, 2))
sketch6.addConstraint(Sketcher.Constraint("Equal", 2, 3))
sketch6.addConstraint(Sketcher.Constraint("Equal", 3, 4))
sketch6.addConstraint(Sketcher.Constraint("Equal", 4, 5))
sketch6.addConstraint(Sketcher.Constraint("Equal", 5, 6))
sketch6.addConstraint(Sketcher.Constraint("Equal", 6, 7))
sketch6.addConstraint(Sketcher.Constraint("Equal", 7, 8))
sketch6.addConstraint(Sketcher.Constraint("Equal", 8, 9))
sketch6.addConstraint(Sketcher.Constraint("Equal", 9, 10))
sketch6.addConstraint(Sketcher.Constraint("Equal", 10, 11))
sketch6.addConstraint(Sketcher.Constraint("Symmetric", 3, 3, 8, 3, -1, 1))
sketch6.addConstraint(Sketcher.Constraint("Symmetric", 2, 3, 9, 3, -1, 1))
sketch6.addConstraint(Sketcher.Constraint("Symmetric", 0, 3, 10, 3, -1, 1))
sketch6.addConstraint(Sketcher.Constraint("Symmetric", 1, 3, 11, 3, -1, 1))
sketch6.addConstraint(Sketcher.Constraint("Symmetric", 0, 3, 1, 3, -2))
sketch6.addConstraint(Sketcher.Constraint("Symmetric", 2, 3, 3, 3, -2))
sketch6.addConstraint(Sketcher.Constraint("Symmetric", 4, 3, 6, 3, -1))
sketch6.addConstraint(Sketcher.Constraint("Symmetric", 5, 3, 7, 3, -1))
sketch6.addConstraint(Sketcher.Constraint("Horizontal", 5, 3, 6, 3))
sketch6.addConstraint(Sketcher.Constraint("Vertical", 0, 3, 2, 3))
sketch6.addConstraint(Sketcher.Constraint("Diameter", 0, 5.0))
sketch6.addConstraint(Sketcher.Constraint("DistanceX", 0, 3, -1, 1, 20.0))
sketch6.addConstraint(Sketcher.Constraint("DistanceY", -1, 1, 0, 3, 175.0))
sketch6.addConstraint(Sketcher.Constraint("DistanceY", -1, 1, 2, 3, 200.0))
sketch6.addConstraint(Sketcher.Constraint("DistanceX", -1, 1, 4, 3, 200.0))
sketch6.addConstraint(Sketcher.Constraint("DistanceY", -1, 1, 4, 3, 20.0))
sketch6.addConstraint(Sketcher.Constraint("DistanceX", -1, 1, 5, 3, 175.0))
doc.recompute()
hole5 = body.newObject("PartDesign::Hole", "Hole004")
hole5.Profile = sketch6
hole5.ThreadType = "None"
hole5.Diameter = 5
hole5.DepthType = "ThroughAll"
hole5.HoleCutType = "Countersink"
hole5.HoleCutDiameter = 5.05
hole5.HoleCutCountersinkAngle = 90
hole5.Reversed = True

# Sketch on XZ plane
sketch7 = body.newObject("Sketcher::SketchObject", "Sketch006")
sketch7.AttachmentSupport = (doc.getObject("XZ_Plane"), [""])
sketch7.MapMode = "FlatFace"
sketch7.addGeometry(Part.Circle(V(221.5, -63.4, 0), V(0, 0, 1), 1.2), False)
sketch7.addGeometry(Part.Circle(V(227.6, -36.1, 0), V(0, 0, 1), 1.2), False)
sketch7.addGeometry(Part.Circle(V(227.6, 36.1, 0), V(0, 0, 1), 1.2), False)
sketch7.addGeometry(Part.Circle(V(221.5, 63.4, 0), V(0, 0, 1), 1.2), False)
sketch7.addGeometry(Part.Circle(V(282.5, -14, 0), V(0, 0, 1), 1.2), False)
sketch7.addGeometry(Part.Circle(V(282.5, 14, 0), V(0, 0, 1), 1.2), False)
sketch7.addConstraint(Sketcher.Constraint("Equal", 0, 1))
sketch7.addConstraint(Sketcher.Constraint("Equal", 1, 2))
sketch7.addConstraint(Sketcher.Constraint("Equal", 2, 3))
sketch7.addConstraint(Sketcher.Constraint("Equal", 3, 4))
sketch7.addConstraint(Sketcher.Constraint("Equal", 4, 5))
sketch7.addConstraint(Sketcher.Constraint("Symmetric", 1, 3, 2, 3, -1))
sketch7.addConstraint(Sketcher.Constraint("Symmetric", 0, 3, 3, 3, -1))
sketch7.addConstraint(Sketcher.Constraint("Symmetric", 4, 3, 5, 3, -1))
sketch7.addConstraint(Sketcher.Constraint("Diameter", 0, 2.5))
sketch7.addConstraint(Sketcher.Constraint("DistanceY", 4, 3, -1, 1, 14.0))
sketch7.addConstraint(Sketcher.Constraint("DistanceX", -1, 1, 4, 3, 282.5))
sketch7.addConstraint(Sketcher.Constraint("DistanceX", 0, 3, 1, 3, 6.060309))
sketch7.addConstraint(Sketcher.Constraint("DistanceY", 0, 3, 1, 3, 27.336288))
sketch7.addConstraint(Sketcher.Constraint("DistanceY", 0, 3, 3, 3, 126.898511))
sketch7.addConstraint(Sketcher.Constraint("DistanceX", -1, 1, 0, 3, 221.517927))
doc.recompute()
hole6 = body.newObject("PartDesign::Hole", "Hole005")
hole6.Profile = sketch7
hole6.ThreadType = "None"
hole6.Diameter = 2.5
hole6.DepthType = "ThroughAll"
hole6.Reversed = True

# Sketch on XZ plane
sketch8 = body.newObject("Sketcher::SketchObject", "Sketch007")
sketch8.AttachmentSupport = (doc.getObject("XZ_Plane"), [""])
sketch8.MapMode = "FlatFace"
sketch8.addGeometry(Part.Circle(V(0, -50, 0), V(0, 0, 1), 2.5), False)
sketch8.addGeometry(Part.Circle(V(43.3, -25, 0), V(0, 0, 1), 2.5), False)
sketch8.addGeometry(Part.Circle(V(-43.3, -25, 0), V(0, 0, 1), 2.5), False)
sketch8.addGeometry(Part.Circle(V(-43.3, 25, 0), V(0, 0, 1), 2.5), False)
sketch8.addGeometry(Part.Circle(V(0, 50, 0), V(0, 0, 1), 2.5), False)
sketch8.addGeometry(Part.Circle(V(43.3, 25, 0), V(0, 0, 1), 2.5), False)
sketch8.addConstraint(Sketcher.Constraint("Equal", 0, 1))
sketch8.addConstraint(Sketcher.Constraint("Equal", 1, 2))
sketch8.addConstraint(Sketcher.Constraint("Equal", 2, 3))
sketch8.addConstraint(Sketcher.Constraint("Equal", 3, 4))
sketch8.addConstraint(Sketcher.Constraint("Equal", 4, 5))
sketch8.addConstraint(Sketcher.Constraint("Symmetric", 1, 3, 3, 3, -1, 1))
sketch8.addConstraint(Sketcher.Constraint("Symmetric", 0, 3, 4, 3, -1, 1))
sketch8.addConstraint(Sketcher.Constraint("Symmetric", 2, 3, 5, 3, -1, 1))
sketch8.addConstraint(Sketcher.Constraint("Symmetric", 1, 3, 2, 3, -2))
sketch8.addConstraint(Sketcher.Constraint("PointOnObject", 0, 3, -2))
sketch8.addConstraint(Sketcher.Constraint("Diameter", 0, 5.0))
sketch8.addConstraint(Sketcher.Constraint("DistanceY", 0, 3, -1, 1, 50.0))
sketch8.addConstraint(Sketcher.Constraint("DistanceY", 1, 3, -1, 1, 25.0))
sketch8.addConstraint(Sketcher.Constraint("DistanceX", -1, 1, 1, 3, 43.30127))
doc.recompute()
hole7 = body.newObject("PartDesign::Hole", "Hole006")
hole7.Profile = sketch8
hole7.ThreadType = "None"
hole7.Diameter = 5
hole7.DepthType = "ThroughAll"
hole7.Reversed = True

doc.recompute()
